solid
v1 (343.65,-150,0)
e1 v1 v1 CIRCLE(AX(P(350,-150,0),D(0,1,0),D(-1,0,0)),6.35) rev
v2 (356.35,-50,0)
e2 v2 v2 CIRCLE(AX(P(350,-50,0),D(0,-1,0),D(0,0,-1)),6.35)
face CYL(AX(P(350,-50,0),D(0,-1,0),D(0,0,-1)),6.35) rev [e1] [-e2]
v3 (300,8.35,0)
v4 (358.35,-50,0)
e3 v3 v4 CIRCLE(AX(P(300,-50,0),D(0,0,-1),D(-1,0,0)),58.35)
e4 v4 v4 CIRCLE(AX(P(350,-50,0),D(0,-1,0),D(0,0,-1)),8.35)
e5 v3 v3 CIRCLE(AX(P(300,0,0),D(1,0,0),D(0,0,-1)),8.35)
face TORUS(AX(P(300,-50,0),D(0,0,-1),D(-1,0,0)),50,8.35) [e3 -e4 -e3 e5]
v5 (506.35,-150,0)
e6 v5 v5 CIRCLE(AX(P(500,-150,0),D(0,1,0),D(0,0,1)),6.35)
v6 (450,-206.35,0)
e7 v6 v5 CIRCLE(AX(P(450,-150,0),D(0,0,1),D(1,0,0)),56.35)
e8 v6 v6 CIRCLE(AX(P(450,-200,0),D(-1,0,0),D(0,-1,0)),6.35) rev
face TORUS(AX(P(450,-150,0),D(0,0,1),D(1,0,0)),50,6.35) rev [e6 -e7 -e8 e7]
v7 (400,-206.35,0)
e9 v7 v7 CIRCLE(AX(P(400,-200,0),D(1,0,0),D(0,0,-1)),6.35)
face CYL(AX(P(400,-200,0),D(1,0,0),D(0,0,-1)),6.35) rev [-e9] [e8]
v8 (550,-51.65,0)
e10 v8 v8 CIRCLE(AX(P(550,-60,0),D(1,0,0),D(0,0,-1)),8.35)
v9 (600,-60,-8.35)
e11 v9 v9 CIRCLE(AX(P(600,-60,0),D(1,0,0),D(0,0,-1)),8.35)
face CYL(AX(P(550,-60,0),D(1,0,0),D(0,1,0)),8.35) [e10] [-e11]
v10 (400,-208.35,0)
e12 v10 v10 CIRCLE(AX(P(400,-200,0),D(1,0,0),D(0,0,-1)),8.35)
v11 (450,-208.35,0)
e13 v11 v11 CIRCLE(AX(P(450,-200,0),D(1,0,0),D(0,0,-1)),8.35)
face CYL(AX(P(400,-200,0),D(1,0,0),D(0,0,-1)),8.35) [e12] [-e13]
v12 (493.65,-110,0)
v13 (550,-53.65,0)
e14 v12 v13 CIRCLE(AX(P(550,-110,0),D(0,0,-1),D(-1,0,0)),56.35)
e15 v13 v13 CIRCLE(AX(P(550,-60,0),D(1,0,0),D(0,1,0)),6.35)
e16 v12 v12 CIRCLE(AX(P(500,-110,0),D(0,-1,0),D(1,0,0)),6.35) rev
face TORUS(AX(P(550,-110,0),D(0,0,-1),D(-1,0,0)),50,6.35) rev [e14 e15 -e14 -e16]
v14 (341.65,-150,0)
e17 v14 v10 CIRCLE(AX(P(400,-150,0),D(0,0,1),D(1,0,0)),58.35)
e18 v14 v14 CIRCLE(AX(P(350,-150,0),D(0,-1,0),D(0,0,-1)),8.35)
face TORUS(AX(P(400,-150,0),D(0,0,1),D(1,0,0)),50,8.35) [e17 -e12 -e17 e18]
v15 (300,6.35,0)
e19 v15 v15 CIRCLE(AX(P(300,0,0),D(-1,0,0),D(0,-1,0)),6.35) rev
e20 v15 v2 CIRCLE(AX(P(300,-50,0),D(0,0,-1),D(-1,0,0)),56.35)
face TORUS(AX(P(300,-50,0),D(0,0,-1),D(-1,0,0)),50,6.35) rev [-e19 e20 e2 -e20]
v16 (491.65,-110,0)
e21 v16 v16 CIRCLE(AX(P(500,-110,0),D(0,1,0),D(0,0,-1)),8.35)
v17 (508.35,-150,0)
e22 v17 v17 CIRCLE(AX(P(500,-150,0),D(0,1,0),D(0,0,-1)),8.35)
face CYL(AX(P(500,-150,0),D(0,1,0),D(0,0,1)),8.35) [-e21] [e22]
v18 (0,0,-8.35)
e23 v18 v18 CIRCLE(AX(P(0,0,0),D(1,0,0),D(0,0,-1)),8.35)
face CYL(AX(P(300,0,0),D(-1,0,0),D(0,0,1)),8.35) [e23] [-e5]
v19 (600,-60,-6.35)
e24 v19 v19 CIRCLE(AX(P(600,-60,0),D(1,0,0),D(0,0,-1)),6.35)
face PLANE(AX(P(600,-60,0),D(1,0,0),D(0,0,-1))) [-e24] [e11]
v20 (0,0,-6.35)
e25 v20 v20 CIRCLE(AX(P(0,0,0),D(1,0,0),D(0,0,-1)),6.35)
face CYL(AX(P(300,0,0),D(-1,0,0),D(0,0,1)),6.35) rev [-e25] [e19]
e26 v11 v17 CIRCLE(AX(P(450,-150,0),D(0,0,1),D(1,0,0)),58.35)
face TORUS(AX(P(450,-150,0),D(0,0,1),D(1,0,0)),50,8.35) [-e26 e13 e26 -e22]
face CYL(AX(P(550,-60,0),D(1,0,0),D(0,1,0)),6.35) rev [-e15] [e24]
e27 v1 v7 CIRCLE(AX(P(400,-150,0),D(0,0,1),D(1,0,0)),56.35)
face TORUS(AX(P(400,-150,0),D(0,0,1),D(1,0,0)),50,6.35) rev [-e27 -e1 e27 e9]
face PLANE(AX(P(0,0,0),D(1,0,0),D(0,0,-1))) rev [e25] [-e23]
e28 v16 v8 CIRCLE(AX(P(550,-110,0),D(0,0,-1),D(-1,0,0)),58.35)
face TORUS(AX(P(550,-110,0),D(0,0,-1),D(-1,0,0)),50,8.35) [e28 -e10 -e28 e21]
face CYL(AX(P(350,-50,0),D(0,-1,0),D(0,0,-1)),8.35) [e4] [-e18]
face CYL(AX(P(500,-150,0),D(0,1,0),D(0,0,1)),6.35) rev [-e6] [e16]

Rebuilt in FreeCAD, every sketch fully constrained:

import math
import FreeCAD as App
import Part
import Sketcher

V = App.Vector


def faces_at(feature, points):
    """Names of the faces that lie closest to the given points."""
    faces = feature.Shape.Faces
    near = lambda p: min(range(len(faces)), key=lambda i: faces[i].distToShape(Part.Vertex(*p))[0])
    return sorted({f"Face{near(p) + 1}" for p in points})

doc = App.newDocument("Part")
body = doc.addObject("PartDesign::Body", "Body")

sketch1 = body.newObject("Sketcher::SketchObject", "Sketch")
sketch1.AttachmentSupport = (doc.getObject("YZ_Plane"), [""])
sketch1.MapMode = "FlatFace"
sketch1.addGeometry(Part.Circle(V(0, 0, 0), V(0, 0, 1), 8), False)
sketch1.addConstraint([
    Sketcher.Constraint("Coincident", 0, 3, -1, 1),
    Sketcher.Constraint("Diameter", 0, 16.7),
])

sketch2 = body.newObject("Sketcher::SketchObject", "Sketch001")
sketch2.AttachmentSupport = (doc.getObject("XY_Plane"), [""])
sketch2.MapMode = "FlatFace"
sketch2.addGeometry([
    Part.LineSegment(V(0, 0, 0), V(300, 0, 0)),
    Part.ArcOfCircle(Part.Circle(V(300, -50, 0), V(0, 0, 1), 50), math.radians(0), math.radians(90)),
    Part.LineSegment(V(350, -50, 0), V(350, -150, 0)),
    Part.ArcOfCircle(Part.Circle(V(400, -150, 0), V(0, 0, 1), 50), math.radians(-180), math.radians(-90)),
    Part.LineSegment(V(400, -200, 0), V(450, -200, 0)),
    Part.ArcOfCircle(Part.Circle(V(450, -150, 0), V(0, 0, 1), 50), math.radians(-90), math.radians(0)),
    Part.LineSegment(V(500, -150, 0), V(500, -110, 0)),
    Part.ArcOfCircle(Part.Circle(V(550, -110, 0), V(0, 0, 1), 50), math.radians(90), math.radians(180)),
    Part.LineSegment(V(550, -60, 0), V(600, -60, 0)),
], False)
sketch2.addConstraint([
    Sketcher.Constraint("Tangent", 0, 2, 1, 2),
    Sketcher.Constraint("Tangent", 1, 1, 2, 1),
    Sketcher.Constraint("Tangent", 2, 2, 3, 1),
    Sketcher.Constraint("Tangent", 3, 2, 4, 1),
    Sketcher.Constraint("Tangent", 4, 2, 5, 1),
    Sketcher.Constraint("Tangent", 5, 2, 6, 1),
    Sketcher.Constraint("Tangent", 6, 2, 7, 2),
    Sketcher.Constraint("Tangent", 7, 1, 8, 1),
    Sketcher.Constraint("Horizontal", 0),
    Sketcher.Constraint("Vertical", 2),
    Sketcher.Constraint("Horizontal", 4),
    Sketcher.Constraint("Vertical", 6),
    Sketcher.Constraint("Horizontal", 8),
    Sketcher.Constraint("Coincident", 0, 1, -1, 1),
    Sketcher.Constraint("Equal", 1, 3),
    Sketcher.Constraint("Equal", 3, 5),
    Sketcher.Constraint("Equal", 5, 7),
    Sketcher.Constraint("Equal", 4, 8),
    Sketcher.Constraint("Radius", 1, 50.0),
    Sketcher.Constraint("DistanceX", 0, 1, 0, 2, 300.0),
    Sketcher.Constraint("DistanceX", 4, 1, 4, 2, 50.0),
    Sketcher.Constraint("DistanceY", 2, 2, 2, 1, 100.0),
    Sketcher.Constraint("DistanceY", 6, 1, 6, 2, 40.0),
])
doc.recompute()

additivepipe = body.newObject("PartDesign::AdditivePipe", "AdditivePipe")
additivepipe.Profile = sketch1
additivepipe.Spine = (sketch2, ["Edge1", "Edge2", "Edge3", "Edge4", "Edge5", "Edge6", "Edge7", "Edge8", "Edge9"])
doc.recompute()

thickness = body.newObject("PartDesign::Thickness", "Thickness")
thickness.Base = (additivepipe, faces_at(additivepipe, [(600, -60, 0), (0, 0, 0)]))
thickness.Value = 2
thickness.Reversed = True
thickness.Join = "Intersection"

doc.recompute()
